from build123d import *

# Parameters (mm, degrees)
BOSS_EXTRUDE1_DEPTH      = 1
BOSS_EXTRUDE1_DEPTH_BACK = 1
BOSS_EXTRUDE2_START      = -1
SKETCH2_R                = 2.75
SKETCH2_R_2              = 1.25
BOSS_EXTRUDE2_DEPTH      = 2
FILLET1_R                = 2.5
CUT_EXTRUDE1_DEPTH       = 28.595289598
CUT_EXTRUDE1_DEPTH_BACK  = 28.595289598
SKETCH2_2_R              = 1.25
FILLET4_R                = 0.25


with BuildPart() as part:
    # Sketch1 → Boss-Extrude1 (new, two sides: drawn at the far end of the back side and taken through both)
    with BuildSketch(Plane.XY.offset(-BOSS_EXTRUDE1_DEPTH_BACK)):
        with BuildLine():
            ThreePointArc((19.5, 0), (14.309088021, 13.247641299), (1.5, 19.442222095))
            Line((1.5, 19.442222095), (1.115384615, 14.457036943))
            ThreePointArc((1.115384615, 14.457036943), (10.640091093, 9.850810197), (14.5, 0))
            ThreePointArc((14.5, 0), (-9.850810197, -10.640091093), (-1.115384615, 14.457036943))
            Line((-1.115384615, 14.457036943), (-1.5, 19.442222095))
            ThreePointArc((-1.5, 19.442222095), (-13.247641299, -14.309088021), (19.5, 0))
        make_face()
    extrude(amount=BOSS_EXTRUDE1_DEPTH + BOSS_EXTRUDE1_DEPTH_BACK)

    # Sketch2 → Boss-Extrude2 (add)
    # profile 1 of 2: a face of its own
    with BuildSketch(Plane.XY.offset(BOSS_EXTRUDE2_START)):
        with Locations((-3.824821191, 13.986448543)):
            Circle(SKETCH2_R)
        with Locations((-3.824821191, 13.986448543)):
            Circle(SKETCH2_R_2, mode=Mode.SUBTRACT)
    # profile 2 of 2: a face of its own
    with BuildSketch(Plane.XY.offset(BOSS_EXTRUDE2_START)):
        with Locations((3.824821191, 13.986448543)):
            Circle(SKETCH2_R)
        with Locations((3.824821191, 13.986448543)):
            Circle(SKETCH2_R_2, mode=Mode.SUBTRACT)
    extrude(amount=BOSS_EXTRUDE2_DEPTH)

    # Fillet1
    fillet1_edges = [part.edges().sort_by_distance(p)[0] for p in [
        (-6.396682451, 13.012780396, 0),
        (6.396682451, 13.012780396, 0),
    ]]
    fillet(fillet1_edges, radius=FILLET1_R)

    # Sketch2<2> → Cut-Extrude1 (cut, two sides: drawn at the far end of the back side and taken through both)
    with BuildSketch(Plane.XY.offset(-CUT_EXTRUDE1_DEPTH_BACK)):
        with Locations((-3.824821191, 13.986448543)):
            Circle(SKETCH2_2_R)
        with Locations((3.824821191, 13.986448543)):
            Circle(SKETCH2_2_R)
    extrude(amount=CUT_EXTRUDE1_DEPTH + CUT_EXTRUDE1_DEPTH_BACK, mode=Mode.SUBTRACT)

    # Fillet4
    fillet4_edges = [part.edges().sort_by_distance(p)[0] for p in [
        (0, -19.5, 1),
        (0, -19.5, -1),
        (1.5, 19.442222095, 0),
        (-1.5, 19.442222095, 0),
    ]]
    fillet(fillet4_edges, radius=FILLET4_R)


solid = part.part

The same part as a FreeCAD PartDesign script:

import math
import FreeCAD as App
import Part
import Sketcher
from FreeCAD import Vector


def edges_at(feature, points):
    """Names of the edges that pass closest to the given points."""
    edges = feature.Shape.Edges
    near = lambda p: min(range(len(edges)), key=lambda i: edges[i].distToShape(Part.Vertex(*p))[0])
    return sorted({f"Edge{near(p) + 1}" for p in points})

doc = App.newDocument("Part")
body = doc.addObject("PartDesign::Body", "Body")

# Sketch on XY plane
sketch1 = body.newObject("Sketcher::SketchObject", "Sketch")
sketch1.AttachmentSupport = (doc.getObject("XY_Plane"), [""])
sketch1.MapMode = "FlatFace"
sketch1.addGeometry(Part.ArcOfCircle(Part.Circle(Vector(0, 0, 0), Vector(0, 0, 1), 19.5), math.radians(0), math.radians(85.588274)), False)
sketch1.addGeometry(Part.LineSegment(Vector(1.5, 19.442222, 0), Vector(1.115385, 14.457037, 0)), False)
sketch1.addGeometry(Part.ArcOfCircle(Part.Circle(Vector(0, 0, 0), Vector(0, 0, 1), 14.5), math.radians(0), math.radians(85.588274)), False)
sketch1.addGeometry(Part.ArcOfCircle(Part.Circle(Vector(0, 0, 0), Vector(0, 0, 1), 14.5), math.radians(94.411726), math.radians(360)), False)
sketch1.addGeometry(Part.LineSegment(Vector(-1.115385, 14.457037, 0), Vector(-1.5, 19.442222, 0)), False)
sketch1.addGeometry(Part.ArcOfCircle(Part.Circle(Vector(0, 0, 0), Vector(0, 0, 1), 19.5), math.radians(94.411726), math.radians(360)), False)
sketch1.addConstraint(Sketcher.Constraint("Coincident", 0, 2, 1, 1))
sketch1.addConstraint(Sketcher.Constraint("Coincident", 1, 2, 2, 2))
sketch1.addConstraint(Sketcher.Constraint("Tangent", 2, 1, 3, 2))
sketch1.addConstraint(Sketcher.Constraint("Coincident", 3, 1, 4, 1))
sketch1.addConstraint(Sketcher.Constraint("Coincident", 4, 2, 5, 1))
sketch1.addConstraint(Sketcher.Constraint("Tangent", 5, 2, 0, 1))
sketch1.addConstraint(Sketcher.Constraint("Coincident", 0, 3, -1, 1))
sketch1.addConstraint(Sketcher.Constraint("Coincident", 2, 3, -1, 1))
sketch1.addConstraint(Sketcher.Constraint("Equal", 2, 3))
sketch1.addConstraint(Sketcher.Constraint("Equal", 0, 5))
sketch1.addConstraint(Sketcher.Constraint("PointOnObject", 2, 1, -1))
sketch1.addConstraint(Sketcher.Constraint("PointOnObject", 5, 2, -1))
sketch1.addConstraint(Sketcher.Constraint("Horizontal", 1, 2, 3, 1))
sketch1.addConstraint(Sketcher.Constraint("Horizontal", 0, 2, 4, 2))
sketch1.addConstraint(Sketcher.Constraint("Radius", 0, 19.5))
sketch1.addConstraint(Sketcher.Constraint("Radius", 2, 14.5))
sketch1.addConstraint(Sketcher.Constraint("DistanceX", 4, 2, 0, 2, 3.0))
sketch1.addConstraint(Sketcher.Constraint("DistanceX", 3, 1, 1, 2, 2.230769))
pad1 = body.newObject("PartDesign::Pad", "Pad")
pad1.Profile = sketch1
pad1.Type = "TwoLengths"
pad1.Length = 1
pad1.Length2 = 1

# Sketch on XY plane
sketch2 = body.newObject("Sketcher::SketchObject", "Sketch001")
sketch2.AttachmentSupport = (doc.getObject("XY_Plane"), [""])
sketch2.MapMode = "FlatFace"
sketch2.AttachmentOffset = App.Placement(Vector(0, 0, -1), App.Rotation())
sketch2.addGeometry(Part.Circle(Vector(-3.824821, 13.986449, 0), Vector(0, 0, 1), 2.75), False)
sketch2.addGeometry(Part.Circle(Vector(-3.824821, 13.986449, 0), Vector(0, 0, 1), 1.25), False)
sketch2.addGeometry(Part.Circle(Vector(3.824821, 13.986449, 0), Vector(0, 0, 1), 2.75), False)
sketch2.addGeometry(Part.Circle(Vector(3.824821, 13.986449, 0), Vector(0, 0, 1), 1.25), False)
sketch2.addConstraint(Sketcher.Constraint("Coincident", 1, 3, 0, 3))
sketch2.addConstraint(Sketcher.Constraint("Coincident", 3, 3, 2, 3))
sketch2.addConstraint(Sketcher.Constraint("Equal", 0, 2))
sketch2.addConstraint(Sketcher.Constraint("Equal", 1, 3))
sketch2.addConstraint(Sketcher.Constraint("Symmetric", 0, 3, 2, 3, -2))
sketch2.addConstraint(Sketcher.Constraint("Diameter", 0, 5.5))
sketch2.addConstraint(Sketcher.Constraint("Diameter", 1, 2.5))
sketch2.addConstraint(Sketcher.Constraint("DistanceX", 0, 3, -1, 1, 3.824821))
sketch2.addConstraint(Sketcher.Constraint("DistanceY", -1, 1, 0, 3, 13.986449))
pad2 = body.newObject("PartDesign::Pad", "Pad001")
pad2.Profile = sketch2
pad2.Length = 2
doc.recompute()

fillet = body.newObject("PartDesign::Fillet", "Fillet")
fillet.Base = (pad2, edges_at(pad2, [(-6.397, 13.013, 0), (6.397, 13.013, 0)]))
fillet.Radius = 2.5

# Sketch on XY plane
sketch3 = body.newObject("Sketcher::SketchObject", "Sketch002")
sketch3.AttachmentSupport = (doc.getObject("XY_Plane"), [""])
sketch3.MapMode = "FlatFace"
sketch3.addGeometry(Part.Circle(Vector(-3.824821, 13.986449, 0), Vector(0, 0, 1), 1.25), False)
sketch3.addGeometry(Part.Circle(Vector(3.824821, 13.986449, 0), Vector(0, 0, 1), 1.25), False)
sketch3.addConstraint(Sketcher.Constraint("Equal", 0, 1))
sketch3.addConstraint(Sketcher.Constraint("Symmetric", 0, 3, 1, 3, -2))
sketch3.addConstraint(Sketcher.Constraint("Diameter", 0, 2.5))
sketch3.addConstraint(Sketcher.Constraint("DistanceX", 0, 3, -1, 1, 3.824821))
sketch3.addConstraint(Sketcher.Constraint("DistanceY", -1, 1, 0, 3, 13.986449))
pocket1 = body.newObject("PartDesign::Pocket", "Pocket")
pocket1.Profile = sketch3
pocket1.Type = "ThroughAll"
pocket1.Midplane = True
doc.recompute()

fillet2 = body.newObject("PartDesign::Fillet", "Fillet001")
fillet2.Base = (pocket1, edges_at(pocket1, [
    (-13.248, -14.309, 1),
    (-13.248, -14.309, -1),
    (1.5, 19.442, 0),
    (-1.5, 19.442, 0),
]))
fillet2.Radius = 0.25

doc.recompute()
